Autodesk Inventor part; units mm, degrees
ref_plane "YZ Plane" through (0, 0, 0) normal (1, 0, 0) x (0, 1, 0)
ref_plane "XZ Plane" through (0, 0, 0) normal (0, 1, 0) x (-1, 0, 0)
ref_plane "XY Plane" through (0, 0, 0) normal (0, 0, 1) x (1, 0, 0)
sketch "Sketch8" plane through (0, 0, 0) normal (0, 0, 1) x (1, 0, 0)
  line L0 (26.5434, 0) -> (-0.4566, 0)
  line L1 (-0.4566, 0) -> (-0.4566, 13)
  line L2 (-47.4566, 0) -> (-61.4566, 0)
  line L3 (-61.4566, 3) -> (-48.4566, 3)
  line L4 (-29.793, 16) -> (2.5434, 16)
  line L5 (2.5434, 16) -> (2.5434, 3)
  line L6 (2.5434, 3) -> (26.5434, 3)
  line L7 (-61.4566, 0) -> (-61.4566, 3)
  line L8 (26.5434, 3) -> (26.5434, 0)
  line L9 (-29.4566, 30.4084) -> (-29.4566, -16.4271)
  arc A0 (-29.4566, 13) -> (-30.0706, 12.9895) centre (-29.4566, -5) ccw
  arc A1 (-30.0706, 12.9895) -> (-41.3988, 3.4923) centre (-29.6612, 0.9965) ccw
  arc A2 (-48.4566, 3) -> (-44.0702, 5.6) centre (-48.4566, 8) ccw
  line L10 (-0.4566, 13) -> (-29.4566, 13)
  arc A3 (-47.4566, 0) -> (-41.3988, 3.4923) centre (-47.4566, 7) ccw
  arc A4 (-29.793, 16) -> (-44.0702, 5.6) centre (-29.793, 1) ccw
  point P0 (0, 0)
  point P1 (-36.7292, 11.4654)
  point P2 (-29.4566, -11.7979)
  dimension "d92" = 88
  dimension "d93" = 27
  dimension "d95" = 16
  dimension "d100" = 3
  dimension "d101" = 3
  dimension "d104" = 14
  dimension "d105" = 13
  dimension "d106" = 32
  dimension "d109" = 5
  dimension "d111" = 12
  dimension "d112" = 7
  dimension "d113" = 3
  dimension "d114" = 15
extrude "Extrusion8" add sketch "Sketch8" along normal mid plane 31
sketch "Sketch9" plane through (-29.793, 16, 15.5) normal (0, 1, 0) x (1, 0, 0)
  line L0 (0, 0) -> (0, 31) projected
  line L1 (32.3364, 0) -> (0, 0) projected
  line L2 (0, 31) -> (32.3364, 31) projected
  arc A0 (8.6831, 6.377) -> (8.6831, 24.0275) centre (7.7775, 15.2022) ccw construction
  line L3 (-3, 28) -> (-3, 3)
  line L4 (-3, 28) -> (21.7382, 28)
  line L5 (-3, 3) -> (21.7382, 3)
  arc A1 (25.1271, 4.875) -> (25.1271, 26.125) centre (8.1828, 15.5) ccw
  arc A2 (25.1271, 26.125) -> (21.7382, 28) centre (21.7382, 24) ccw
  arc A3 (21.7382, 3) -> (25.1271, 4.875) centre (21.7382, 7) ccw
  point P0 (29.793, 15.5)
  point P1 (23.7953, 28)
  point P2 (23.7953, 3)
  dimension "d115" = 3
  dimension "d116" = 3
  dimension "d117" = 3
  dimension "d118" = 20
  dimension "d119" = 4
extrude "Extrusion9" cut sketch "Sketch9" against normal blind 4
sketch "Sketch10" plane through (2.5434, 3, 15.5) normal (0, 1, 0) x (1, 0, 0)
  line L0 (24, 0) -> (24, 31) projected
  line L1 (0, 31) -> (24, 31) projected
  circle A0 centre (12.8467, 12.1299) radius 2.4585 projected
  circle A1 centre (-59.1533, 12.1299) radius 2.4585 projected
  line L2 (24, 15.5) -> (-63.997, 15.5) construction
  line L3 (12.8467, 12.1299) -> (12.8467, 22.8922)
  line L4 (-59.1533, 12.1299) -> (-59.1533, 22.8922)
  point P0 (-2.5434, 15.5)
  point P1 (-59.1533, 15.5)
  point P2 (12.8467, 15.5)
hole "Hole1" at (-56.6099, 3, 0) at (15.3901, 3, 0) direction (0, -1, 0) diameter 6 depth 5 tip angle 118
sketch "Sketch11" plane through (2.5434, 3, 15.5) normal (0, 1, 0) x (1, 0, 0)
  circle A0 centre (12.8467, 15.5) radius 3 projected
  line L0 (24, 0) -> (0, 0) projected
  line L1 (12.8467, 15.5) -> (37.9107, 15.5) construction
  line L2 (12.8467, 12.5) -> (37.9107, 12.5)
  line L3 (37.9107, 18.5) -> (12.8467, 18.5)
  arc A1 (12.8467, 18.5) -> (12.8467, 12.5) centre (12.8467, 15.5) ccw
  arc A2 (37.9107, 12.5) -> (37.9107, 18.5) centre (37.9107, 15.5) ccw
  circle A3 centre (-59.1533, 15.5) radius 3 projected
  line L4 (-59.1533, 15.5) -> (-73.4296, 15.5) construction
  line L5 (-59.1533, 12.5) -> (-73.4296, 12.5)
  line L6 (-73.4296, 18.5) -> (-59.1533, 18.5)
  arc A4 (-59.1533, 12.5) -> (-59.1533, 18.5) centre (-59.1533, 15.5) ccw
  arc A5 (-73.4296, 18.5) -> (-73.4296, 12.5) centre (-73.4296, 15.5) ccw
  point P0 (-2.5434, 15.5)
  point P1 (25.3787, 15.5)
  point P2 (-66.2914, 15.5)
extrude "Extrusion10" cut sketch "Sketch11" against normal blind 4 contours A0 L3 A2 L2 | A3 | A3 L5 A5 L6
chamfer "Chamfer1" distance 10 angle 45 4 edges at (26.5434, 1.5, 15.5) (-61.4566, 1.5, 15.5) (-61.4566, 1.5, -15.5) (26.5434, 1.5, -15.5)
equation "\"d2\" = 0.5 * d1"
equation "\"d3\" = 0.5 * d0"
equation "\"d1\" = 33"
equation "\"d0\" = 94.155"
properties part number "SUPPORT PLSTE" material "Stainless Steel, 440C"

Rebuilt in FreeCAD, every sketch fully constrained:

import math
import FreeCAD as App
import Part
import Sketcher


def edges_at(feature, points):
    """Names of the edges that pass closest to the given points."""
    edges = feature.Shape.Edges
    near = lambda p: min(range(len(edges)), key=lambda i: edges[i].distToShape(Part.Vertex(*p))[0])
    return sorted({f"Edge{near(p) + 1}" for p in points})

doc = App.newDocument("Part")
body = doc.addObject("PartDesign::Body", "Body")

sketch1 = body.newObject("Sketcher::SketchObject", "Sketch")
sketch1.AttachmentSupport = (doc.getObject("XY_Plane"), [""])
sketch1.MapMode = "FlatFace"
sketch1.addGeometry([
    Part.LineSegment(App.Vector(-0.4566, 0, 0), App.Vector(26.5434, 0, 0)),
    Part.LineSegment(App.Vector(26.5434, 0, 0), App.Vector(26.5434, 3, 0)),
    Part.LineSegment(App.Vector(26.5434, 3, 0), App.Vector(2.5434, 3, 0)),
    Part.LineSegment(App.Vector(2.5434, 3, 0), App.Vector(2.5434, 16, 0)),
    Part.LineSegment(App.Vector(2.5434, 16, 0), App.Vector(-29.793, 16, 0)),
    Part.ArcOfCircle(Part.Circle(App.Vector(-29.793, 1, 0), App.Vector(0, 0, 1), 15), math.radians(90), math.radians(162.141473)),
    Part.ArcOfCircle(Part.Circle(App.Vector(-48.4566, 8, 0), App.Vector(0, 0, 1), 5), math.radians(-90), math.radians(-28.685085)),
    Part.LineSegment(App.Vector(-48.4566, 3, 0), App.Vector(-61.4566, 3, 0)),
    Part.LineSegment(App.Vector(-61.4566, 3, 0), App.Vector(-61.4566, 0, 0)),
    Part.LineSegment(App.Vector(-61.4566, 0, 0), App.Vector(-47.4566, 0, 0)),
    Part.ArcOfCircle(Part.Circle(App.Vector(-47.4566, 7, 0), App.Vector(0, 0, 1), 7), math.radians(-90), math.radians(-30.072497)),
    Part.ArcOfCircle(Part.Circle(App.Vector(-29.6612, 0.9965, 0), App.Vector(0, 0, 1), 11.999986), math.radians(91.955123), math.radians(167.995815)),
    Part.ArcOfCircle(Part.Circle(App.Vector(-29.457324, -4.915088, 0), App.Vector(0, 0, 1), 17.915088), math.radians(89.997684), math.radians(91.961753)),
    Part.LineSegment(App.Vector(-29.4566, 13, 0), App.Vector(-0.4566, 13, 0)),
    Part.LineSegment(App.Vector(-0.4566, 13, 0), App.Vector(-0.4566, 0, 0)),
], False)
sketch1.addConstraint([
    Sketcher.Constraint("Coincident", 0, 2, 1, 1),
    Sketcher.Constraint("Coincident", 1, 2, 2, 1),
    Sketcher.Constraint("Coincident", 2, 2, 3, 1),
    Sketcher.Constraint("Coincident", 3, 2, 4, 1),
    Sketcher.Constraint("Coincident", 4, 2, 5, 1),
    Sketcher.Constraint("Coincident", 5, 2, 6, 2),
    Sketcher.Constraint("Coincident", 6, 1, 7, 1),
    Sketcher.Constraint("Coincident", 7, 2, 8, 1),
    Sketcher.Constraint("Coincident", 8, 2, 9, 1),
    Sketcher.Constraint("Coincident", 9, 2, 10, 1),
    Sketcher.Constraint("Coincident", 10, 2, 11, 2),
    Sketcher.Constraint("Coincident", 11, 1, 12, 2),
    Sketcher.Constraint("Coincident", 12, 1, 13, 1),
    Sketcher.Constraint("Coincident", 13, 2, 14, 1),
    Sketcher.Constraint("Coincident", 14, 2, 0, 1),
    Sketcher.Constraint("Horizontal", 0),
    Sketcher.Constraint("Vertical", 1),
    Sketcher.Constraint("Horizontal", 2),
    Sketcher.Constraint("Vertical", 3),
    Sketcher.Constraint("Horizontal", 4),
    Sketcher.Constraint("Horizontal", 7),
    Sketcher.Constraint("Vertical", 8),
    Sketcher.Constraint("Horizontal", 9),
    Sketcher.Constraint("Horizontal", 13),
    Sketcher.Constraint("Vertical", 14),
    Sketcher.Constraint("PointOnObject", 0, 2, -1),
    Sketcher.Constraint("PointOnObject", 8, 2, -1),
    Sketcher.Constraint("Radius", 5, 15.0),
    Sketcher.Constraint("Radius", 6, 5.0),
    Sketcher.Constraint("Radius", 10, 7.0),
    Sketcher.Constraint("Radius", 11, 12.0),
    Sketcher.Constraint("DistanceX", 0, 1, 0, 2, 27.0),
    Sketcher.Constraint("DistanceX", 7, 2, 7, 1, 13.0),
    Sketcher.Constraint("DistanceX", 9, 1, 9, 2, 14.0),
    Sketcher.Constraint("DistanceY", 1, 1, 1, 2, 3.0),
    Sketcher.Constraint("DistanceY", 3, 1, 3, 2, 13.0),
    Sketcher.Constraint("DistanceY", 8, 2, 8, 1, 3.0),
    Sketcher.Constraint("DistanceY", 14, 2, 14, 1, 13.0),
    Sketcher.Constraint("DistanceX", 7, 2, 6, 3, 13.0),
    Sketcher.Constraint("DistanceX", 7, 2, 10, 3, 14.0),
    Sketcher.Constraint("DistanceX", 13, 2, 3, 2, 3.0),
    Sketcher.Constraint("DistanceX", 13, 1, 13, 2, 29.0),
    Sketcher.Constraint("Radius", 12, 17.915),
    Sketcher.Constraint("DistanceX", 10, 3, 0, 2, 74.0),
    Sketcher.Constraint("DistanceY", -1, 1, 5, 2, 5.6),
    Sketcher.Constraint("DistanceX", 5, 2, 11, 1, 13.9996),
    Sketcher.Constraint("DistanceX", 4, 2, 4, 1, 32.3364),
    Sketcher.Constraint("DistanceX", 5, 3, -1, 1, 29.793),
    Sketcher.Constraint("DistanceX", 5, 2, 11, 3, 14.409),
    Sketcher.Constraint("DistanceY", -1, 1, 11, 3, 0.9965),
])
pad1 = body.newObject("PartDesign::Pad", "Pad")
pad1.Profile = sketch1
pad1.Length = 31
pad1.Midplane = True

sketch2 = body.newObject("Sketcher::SketchObject", "Sketch001")
sketch2.AttachmentSupport = (doc.getObject("XZ_Plane"), [""])
sketch2.MapMode = "FlatFace"
sketch2.AttachmentOffset = App.Placement(App.Vector(0, 0, -16), App.Rotation())
sketch2.addGeometry([
    Part.LineSegment(App.Vector(-32.793, 12.5, 0), App.Vector(-8.0548, 12.5, 0)),
    Part.ArcOfCircle(Part.Circle(App.Vector(-8.0548, 8.5, 0), App.Vector(0, 0, 1), 4), math.radians(32.08965), math.radians(90)),
    Part.ArcOfCircle(Part.Circle(App.Vector(-21.6102, 0, 0), App.Vector(0, 0, 1), 19.999998), math.radians(-32.089955), math.radians(32.089955)),
    Part.ArcOfCircle(Part.Circle(App.Vector(-8.0548, -8.5, 0), App.Vector(0, 0, 1), 4.000034), math.radians(-90), math.radians(-32.08965)),
    Part.LineSegment(App.Vector(-8.0548, -12.5, 0), App.Vector(-32.793, -12.5, 0)),
    Part.LineSegment(App.Vector(-32.793, -12.5, 0), App.Vector(-32.793, 12.5, 0)),
], False)
sketch2.addConstraint([
    Sketcher.Constraint("Tangent", 0, 2, 1, 2),
    Sketcher.Constraint("Tangent", 1, 1, 2, 2),
    Sketcher.Constraint("Tangent", 2, 1, 3, 2),
    Sketcher.Constraint("Tangent", 3, 1, 4, 1),
    Sketcher.Constraint("Coincident", 4, 2, 5, 1),
    Sketcher.Constraint("Coincident", 5, 2, 0, 1),
    Sketcher.Constraint("Horizontal", 0),
    Sketcher.Constraint("Horizontal", 4),
    Sketcher.Constraint("Vertical", 5),
    Sketcher.Constraint("Equal", 1, 3),
    Sketcher.Constraint("Symmetric", 1, 3, 3, 3, -1),
    Sketcher.Constraint("Radius", 1, 4.0),
    Sketcher.Constraint("Radius", 2, 20.0),
    Sketcher.Constraint("DistanceY", 5, 1, 5, 2, 25.0),
    Sketcher.Constraint("DistanceX", 0, 1, 0, 2, 24.7382),
    Sketcher.Constraint("DistanceX", 1, 1, -1, 1, 4.666),
])
pocket1 = body.newObject("PartDesign::Pocket", "Pocket")
pocket1.Profile = sketch2
pocket1.Length = 4
pocket1.Reversed = True

sketch3 = body.newObject("Sketcher::SketchObject", "Sketch002")
sketch3.AttachmentSupport = (doc.getObject("XZ_Plane"), [""])
sketch3.MapMode = "FlatFace"
sketch3.AttachmentOffset = App.Placement(App.Vector(0, 0, -3), App.Rotation())
sketch3.addGeometry([
    Part.Circle(App.Vector(-56.6099, 0, 0), App.Vector(0, 0, 1), 3),
    Part.Circle(App.Vector(15.3901, 0, 0), App.Vector(0, 0, 1), 3),
], False)
sketch3.addConstraint([
    Sketcher.Constraint("Equal", 0, 1),
    Sketcher.Constraint("PointOnObject", 0, 3, -1),
    Sketcher.Constraint("PointOnObject", 1, 3, -1),
    Sketcher.Constraint("Diameter", 0, 6.0),
    Sketcher.Constraint("DistanceX", 0, 3, 1, 3, 72.0),
    Sketcher.Constraint("DistanceX", 0, 3, -1, 1, 56.61),
])
doc.recompute()
hole = body.newObject("PartDesign::Hole", "Hole")
hole.Profile = sketch3
hole.ThreadType = "None"
hole.Diameter = 6
hole.DepthType = "Dimension"
hole.Depth = 5
hole.DrillPoint = "Angled"
hole.DrillPointAngle = 118
hole.Reversed = True

sketch4 = body.newObject("Sketcher::SketchObject", "Sketch003")
sketch4.AttachmentSupport = (doc.getObject("XZ_Plane"), [""])
sketch4.MapMode = "FlatFace"
sketch4.AttachmentOffset = App.Placement(App.Vector(0, 0, -3), App.Rotation())
sketch4.addGeometry([
    Part.ArcOfCircle(Part.Circle(App.Vector(15.3901, 0, 0), App.Vector(0, 0, 1), 3), math.radians(-90), math.radians(90)),
    Part.LineSegment(App.Vector(15.3901, 3, 0), App.Vector(40.4541, 3, 0)),
    Part.ArcOfCircle(Part.Circle(App.Vector(40.4541, 0, 0), App.Vector(0, 0, 1), 3), math.radians(-90), math.radians(90)),
    Part.LineSegment(App.Vector(40.4541, -3, 0), App.Vector(15.3901, -3, 0)),
    Part.ArcOfCircle(Part.Circle(App.Vector(-56.6099, 0, 0), App.Vector(0, 0, 1), 3), math.radians(-90), math.radians(90)),
    Part.LineSegment(App.Vector(-56.6099, -3, 0), App.Vector(-70.8862, -3, 0)),
    Part.ArcOfCircle(Part.Circle(App.Vector(-70.8862, 0, 0), App.Vector(0, 0, 1), 3), math.radians(90), math.radians(270)),
    Part.LineSegment(App.Vector(-70.8862, 3, 0), App.Vector(-56.6099, 3, 0)),
], False)
sketch4.addConstraint([
    Sketcher.Constraint("Tangent", 0, 2, 1, 1),
    Sketcher.Constraint("Tangent", 1, 2, 2, 2),
    Sketcher.Constraint("Tangent", 2, 1, 3, 1),
    Sketcher.Constraint("Tangent", 3, 2, 0, 1),
    Sketcher.Constraint("Tangent", 4, 1, 5, 1),
    Sketcher.Constraint("Tangent", 5, 2, 6, 2),
    Sketcher.Constraint("Tangent", 6, 1, 7, 1),
    Sketcher.Constraint("Tangent", 7, 2, 4, 2),
    Sketcher.Constraint("Horizontal", 1),
    Sketcher.Constraint("Horizontal", 3),
    Sketcher.Constraint("Horizontal", 5),
    Sketcher.Constraint("Horizontal", 7),
    Sketcher.Constraint("Equal", 2, 4),
    Sketcher.Constraint("PointOnObject", 0, 3, -1),
    Sketcher.Constraint("PointOnObject", 4, 3, -1),
    Sketcher.Constraint("Radius", 0, 3.0),
    Sketcher.Constraint("DistanceX", 4, 3, 0, 3, 72.0),
    Sketcher.Constraint("DistanceX", 1, 1, 1, 2, 25.064),
    Sketcher.Constraint("DistanceX", -1, 1, 0, 3, 15.39),
    Sketcher.Constraint("DistanceX", 5, 2, 5, 1, 14.2763),
])
pocket2 = body.newObject("PartDesign::Pocket", "Pocket001")
pocket2.Profile = sketch4
pocket2.Length = 4
pocket2.Reversed = True
doc.recompute()

chamfer = body.newObject("PartDesign::Chamfer", "Chamfer")
chamfer.Base = (pocket2, edges_at(pocket2, [
    (26.543, 1.5, 15.5),
    (-61.457, 1.5, 15.5),
    (-61.457, 1.5, -15.5),
    (26.543, 1.5, -15.5),
]))
chamfer.Size = 10

doc.recompute()
